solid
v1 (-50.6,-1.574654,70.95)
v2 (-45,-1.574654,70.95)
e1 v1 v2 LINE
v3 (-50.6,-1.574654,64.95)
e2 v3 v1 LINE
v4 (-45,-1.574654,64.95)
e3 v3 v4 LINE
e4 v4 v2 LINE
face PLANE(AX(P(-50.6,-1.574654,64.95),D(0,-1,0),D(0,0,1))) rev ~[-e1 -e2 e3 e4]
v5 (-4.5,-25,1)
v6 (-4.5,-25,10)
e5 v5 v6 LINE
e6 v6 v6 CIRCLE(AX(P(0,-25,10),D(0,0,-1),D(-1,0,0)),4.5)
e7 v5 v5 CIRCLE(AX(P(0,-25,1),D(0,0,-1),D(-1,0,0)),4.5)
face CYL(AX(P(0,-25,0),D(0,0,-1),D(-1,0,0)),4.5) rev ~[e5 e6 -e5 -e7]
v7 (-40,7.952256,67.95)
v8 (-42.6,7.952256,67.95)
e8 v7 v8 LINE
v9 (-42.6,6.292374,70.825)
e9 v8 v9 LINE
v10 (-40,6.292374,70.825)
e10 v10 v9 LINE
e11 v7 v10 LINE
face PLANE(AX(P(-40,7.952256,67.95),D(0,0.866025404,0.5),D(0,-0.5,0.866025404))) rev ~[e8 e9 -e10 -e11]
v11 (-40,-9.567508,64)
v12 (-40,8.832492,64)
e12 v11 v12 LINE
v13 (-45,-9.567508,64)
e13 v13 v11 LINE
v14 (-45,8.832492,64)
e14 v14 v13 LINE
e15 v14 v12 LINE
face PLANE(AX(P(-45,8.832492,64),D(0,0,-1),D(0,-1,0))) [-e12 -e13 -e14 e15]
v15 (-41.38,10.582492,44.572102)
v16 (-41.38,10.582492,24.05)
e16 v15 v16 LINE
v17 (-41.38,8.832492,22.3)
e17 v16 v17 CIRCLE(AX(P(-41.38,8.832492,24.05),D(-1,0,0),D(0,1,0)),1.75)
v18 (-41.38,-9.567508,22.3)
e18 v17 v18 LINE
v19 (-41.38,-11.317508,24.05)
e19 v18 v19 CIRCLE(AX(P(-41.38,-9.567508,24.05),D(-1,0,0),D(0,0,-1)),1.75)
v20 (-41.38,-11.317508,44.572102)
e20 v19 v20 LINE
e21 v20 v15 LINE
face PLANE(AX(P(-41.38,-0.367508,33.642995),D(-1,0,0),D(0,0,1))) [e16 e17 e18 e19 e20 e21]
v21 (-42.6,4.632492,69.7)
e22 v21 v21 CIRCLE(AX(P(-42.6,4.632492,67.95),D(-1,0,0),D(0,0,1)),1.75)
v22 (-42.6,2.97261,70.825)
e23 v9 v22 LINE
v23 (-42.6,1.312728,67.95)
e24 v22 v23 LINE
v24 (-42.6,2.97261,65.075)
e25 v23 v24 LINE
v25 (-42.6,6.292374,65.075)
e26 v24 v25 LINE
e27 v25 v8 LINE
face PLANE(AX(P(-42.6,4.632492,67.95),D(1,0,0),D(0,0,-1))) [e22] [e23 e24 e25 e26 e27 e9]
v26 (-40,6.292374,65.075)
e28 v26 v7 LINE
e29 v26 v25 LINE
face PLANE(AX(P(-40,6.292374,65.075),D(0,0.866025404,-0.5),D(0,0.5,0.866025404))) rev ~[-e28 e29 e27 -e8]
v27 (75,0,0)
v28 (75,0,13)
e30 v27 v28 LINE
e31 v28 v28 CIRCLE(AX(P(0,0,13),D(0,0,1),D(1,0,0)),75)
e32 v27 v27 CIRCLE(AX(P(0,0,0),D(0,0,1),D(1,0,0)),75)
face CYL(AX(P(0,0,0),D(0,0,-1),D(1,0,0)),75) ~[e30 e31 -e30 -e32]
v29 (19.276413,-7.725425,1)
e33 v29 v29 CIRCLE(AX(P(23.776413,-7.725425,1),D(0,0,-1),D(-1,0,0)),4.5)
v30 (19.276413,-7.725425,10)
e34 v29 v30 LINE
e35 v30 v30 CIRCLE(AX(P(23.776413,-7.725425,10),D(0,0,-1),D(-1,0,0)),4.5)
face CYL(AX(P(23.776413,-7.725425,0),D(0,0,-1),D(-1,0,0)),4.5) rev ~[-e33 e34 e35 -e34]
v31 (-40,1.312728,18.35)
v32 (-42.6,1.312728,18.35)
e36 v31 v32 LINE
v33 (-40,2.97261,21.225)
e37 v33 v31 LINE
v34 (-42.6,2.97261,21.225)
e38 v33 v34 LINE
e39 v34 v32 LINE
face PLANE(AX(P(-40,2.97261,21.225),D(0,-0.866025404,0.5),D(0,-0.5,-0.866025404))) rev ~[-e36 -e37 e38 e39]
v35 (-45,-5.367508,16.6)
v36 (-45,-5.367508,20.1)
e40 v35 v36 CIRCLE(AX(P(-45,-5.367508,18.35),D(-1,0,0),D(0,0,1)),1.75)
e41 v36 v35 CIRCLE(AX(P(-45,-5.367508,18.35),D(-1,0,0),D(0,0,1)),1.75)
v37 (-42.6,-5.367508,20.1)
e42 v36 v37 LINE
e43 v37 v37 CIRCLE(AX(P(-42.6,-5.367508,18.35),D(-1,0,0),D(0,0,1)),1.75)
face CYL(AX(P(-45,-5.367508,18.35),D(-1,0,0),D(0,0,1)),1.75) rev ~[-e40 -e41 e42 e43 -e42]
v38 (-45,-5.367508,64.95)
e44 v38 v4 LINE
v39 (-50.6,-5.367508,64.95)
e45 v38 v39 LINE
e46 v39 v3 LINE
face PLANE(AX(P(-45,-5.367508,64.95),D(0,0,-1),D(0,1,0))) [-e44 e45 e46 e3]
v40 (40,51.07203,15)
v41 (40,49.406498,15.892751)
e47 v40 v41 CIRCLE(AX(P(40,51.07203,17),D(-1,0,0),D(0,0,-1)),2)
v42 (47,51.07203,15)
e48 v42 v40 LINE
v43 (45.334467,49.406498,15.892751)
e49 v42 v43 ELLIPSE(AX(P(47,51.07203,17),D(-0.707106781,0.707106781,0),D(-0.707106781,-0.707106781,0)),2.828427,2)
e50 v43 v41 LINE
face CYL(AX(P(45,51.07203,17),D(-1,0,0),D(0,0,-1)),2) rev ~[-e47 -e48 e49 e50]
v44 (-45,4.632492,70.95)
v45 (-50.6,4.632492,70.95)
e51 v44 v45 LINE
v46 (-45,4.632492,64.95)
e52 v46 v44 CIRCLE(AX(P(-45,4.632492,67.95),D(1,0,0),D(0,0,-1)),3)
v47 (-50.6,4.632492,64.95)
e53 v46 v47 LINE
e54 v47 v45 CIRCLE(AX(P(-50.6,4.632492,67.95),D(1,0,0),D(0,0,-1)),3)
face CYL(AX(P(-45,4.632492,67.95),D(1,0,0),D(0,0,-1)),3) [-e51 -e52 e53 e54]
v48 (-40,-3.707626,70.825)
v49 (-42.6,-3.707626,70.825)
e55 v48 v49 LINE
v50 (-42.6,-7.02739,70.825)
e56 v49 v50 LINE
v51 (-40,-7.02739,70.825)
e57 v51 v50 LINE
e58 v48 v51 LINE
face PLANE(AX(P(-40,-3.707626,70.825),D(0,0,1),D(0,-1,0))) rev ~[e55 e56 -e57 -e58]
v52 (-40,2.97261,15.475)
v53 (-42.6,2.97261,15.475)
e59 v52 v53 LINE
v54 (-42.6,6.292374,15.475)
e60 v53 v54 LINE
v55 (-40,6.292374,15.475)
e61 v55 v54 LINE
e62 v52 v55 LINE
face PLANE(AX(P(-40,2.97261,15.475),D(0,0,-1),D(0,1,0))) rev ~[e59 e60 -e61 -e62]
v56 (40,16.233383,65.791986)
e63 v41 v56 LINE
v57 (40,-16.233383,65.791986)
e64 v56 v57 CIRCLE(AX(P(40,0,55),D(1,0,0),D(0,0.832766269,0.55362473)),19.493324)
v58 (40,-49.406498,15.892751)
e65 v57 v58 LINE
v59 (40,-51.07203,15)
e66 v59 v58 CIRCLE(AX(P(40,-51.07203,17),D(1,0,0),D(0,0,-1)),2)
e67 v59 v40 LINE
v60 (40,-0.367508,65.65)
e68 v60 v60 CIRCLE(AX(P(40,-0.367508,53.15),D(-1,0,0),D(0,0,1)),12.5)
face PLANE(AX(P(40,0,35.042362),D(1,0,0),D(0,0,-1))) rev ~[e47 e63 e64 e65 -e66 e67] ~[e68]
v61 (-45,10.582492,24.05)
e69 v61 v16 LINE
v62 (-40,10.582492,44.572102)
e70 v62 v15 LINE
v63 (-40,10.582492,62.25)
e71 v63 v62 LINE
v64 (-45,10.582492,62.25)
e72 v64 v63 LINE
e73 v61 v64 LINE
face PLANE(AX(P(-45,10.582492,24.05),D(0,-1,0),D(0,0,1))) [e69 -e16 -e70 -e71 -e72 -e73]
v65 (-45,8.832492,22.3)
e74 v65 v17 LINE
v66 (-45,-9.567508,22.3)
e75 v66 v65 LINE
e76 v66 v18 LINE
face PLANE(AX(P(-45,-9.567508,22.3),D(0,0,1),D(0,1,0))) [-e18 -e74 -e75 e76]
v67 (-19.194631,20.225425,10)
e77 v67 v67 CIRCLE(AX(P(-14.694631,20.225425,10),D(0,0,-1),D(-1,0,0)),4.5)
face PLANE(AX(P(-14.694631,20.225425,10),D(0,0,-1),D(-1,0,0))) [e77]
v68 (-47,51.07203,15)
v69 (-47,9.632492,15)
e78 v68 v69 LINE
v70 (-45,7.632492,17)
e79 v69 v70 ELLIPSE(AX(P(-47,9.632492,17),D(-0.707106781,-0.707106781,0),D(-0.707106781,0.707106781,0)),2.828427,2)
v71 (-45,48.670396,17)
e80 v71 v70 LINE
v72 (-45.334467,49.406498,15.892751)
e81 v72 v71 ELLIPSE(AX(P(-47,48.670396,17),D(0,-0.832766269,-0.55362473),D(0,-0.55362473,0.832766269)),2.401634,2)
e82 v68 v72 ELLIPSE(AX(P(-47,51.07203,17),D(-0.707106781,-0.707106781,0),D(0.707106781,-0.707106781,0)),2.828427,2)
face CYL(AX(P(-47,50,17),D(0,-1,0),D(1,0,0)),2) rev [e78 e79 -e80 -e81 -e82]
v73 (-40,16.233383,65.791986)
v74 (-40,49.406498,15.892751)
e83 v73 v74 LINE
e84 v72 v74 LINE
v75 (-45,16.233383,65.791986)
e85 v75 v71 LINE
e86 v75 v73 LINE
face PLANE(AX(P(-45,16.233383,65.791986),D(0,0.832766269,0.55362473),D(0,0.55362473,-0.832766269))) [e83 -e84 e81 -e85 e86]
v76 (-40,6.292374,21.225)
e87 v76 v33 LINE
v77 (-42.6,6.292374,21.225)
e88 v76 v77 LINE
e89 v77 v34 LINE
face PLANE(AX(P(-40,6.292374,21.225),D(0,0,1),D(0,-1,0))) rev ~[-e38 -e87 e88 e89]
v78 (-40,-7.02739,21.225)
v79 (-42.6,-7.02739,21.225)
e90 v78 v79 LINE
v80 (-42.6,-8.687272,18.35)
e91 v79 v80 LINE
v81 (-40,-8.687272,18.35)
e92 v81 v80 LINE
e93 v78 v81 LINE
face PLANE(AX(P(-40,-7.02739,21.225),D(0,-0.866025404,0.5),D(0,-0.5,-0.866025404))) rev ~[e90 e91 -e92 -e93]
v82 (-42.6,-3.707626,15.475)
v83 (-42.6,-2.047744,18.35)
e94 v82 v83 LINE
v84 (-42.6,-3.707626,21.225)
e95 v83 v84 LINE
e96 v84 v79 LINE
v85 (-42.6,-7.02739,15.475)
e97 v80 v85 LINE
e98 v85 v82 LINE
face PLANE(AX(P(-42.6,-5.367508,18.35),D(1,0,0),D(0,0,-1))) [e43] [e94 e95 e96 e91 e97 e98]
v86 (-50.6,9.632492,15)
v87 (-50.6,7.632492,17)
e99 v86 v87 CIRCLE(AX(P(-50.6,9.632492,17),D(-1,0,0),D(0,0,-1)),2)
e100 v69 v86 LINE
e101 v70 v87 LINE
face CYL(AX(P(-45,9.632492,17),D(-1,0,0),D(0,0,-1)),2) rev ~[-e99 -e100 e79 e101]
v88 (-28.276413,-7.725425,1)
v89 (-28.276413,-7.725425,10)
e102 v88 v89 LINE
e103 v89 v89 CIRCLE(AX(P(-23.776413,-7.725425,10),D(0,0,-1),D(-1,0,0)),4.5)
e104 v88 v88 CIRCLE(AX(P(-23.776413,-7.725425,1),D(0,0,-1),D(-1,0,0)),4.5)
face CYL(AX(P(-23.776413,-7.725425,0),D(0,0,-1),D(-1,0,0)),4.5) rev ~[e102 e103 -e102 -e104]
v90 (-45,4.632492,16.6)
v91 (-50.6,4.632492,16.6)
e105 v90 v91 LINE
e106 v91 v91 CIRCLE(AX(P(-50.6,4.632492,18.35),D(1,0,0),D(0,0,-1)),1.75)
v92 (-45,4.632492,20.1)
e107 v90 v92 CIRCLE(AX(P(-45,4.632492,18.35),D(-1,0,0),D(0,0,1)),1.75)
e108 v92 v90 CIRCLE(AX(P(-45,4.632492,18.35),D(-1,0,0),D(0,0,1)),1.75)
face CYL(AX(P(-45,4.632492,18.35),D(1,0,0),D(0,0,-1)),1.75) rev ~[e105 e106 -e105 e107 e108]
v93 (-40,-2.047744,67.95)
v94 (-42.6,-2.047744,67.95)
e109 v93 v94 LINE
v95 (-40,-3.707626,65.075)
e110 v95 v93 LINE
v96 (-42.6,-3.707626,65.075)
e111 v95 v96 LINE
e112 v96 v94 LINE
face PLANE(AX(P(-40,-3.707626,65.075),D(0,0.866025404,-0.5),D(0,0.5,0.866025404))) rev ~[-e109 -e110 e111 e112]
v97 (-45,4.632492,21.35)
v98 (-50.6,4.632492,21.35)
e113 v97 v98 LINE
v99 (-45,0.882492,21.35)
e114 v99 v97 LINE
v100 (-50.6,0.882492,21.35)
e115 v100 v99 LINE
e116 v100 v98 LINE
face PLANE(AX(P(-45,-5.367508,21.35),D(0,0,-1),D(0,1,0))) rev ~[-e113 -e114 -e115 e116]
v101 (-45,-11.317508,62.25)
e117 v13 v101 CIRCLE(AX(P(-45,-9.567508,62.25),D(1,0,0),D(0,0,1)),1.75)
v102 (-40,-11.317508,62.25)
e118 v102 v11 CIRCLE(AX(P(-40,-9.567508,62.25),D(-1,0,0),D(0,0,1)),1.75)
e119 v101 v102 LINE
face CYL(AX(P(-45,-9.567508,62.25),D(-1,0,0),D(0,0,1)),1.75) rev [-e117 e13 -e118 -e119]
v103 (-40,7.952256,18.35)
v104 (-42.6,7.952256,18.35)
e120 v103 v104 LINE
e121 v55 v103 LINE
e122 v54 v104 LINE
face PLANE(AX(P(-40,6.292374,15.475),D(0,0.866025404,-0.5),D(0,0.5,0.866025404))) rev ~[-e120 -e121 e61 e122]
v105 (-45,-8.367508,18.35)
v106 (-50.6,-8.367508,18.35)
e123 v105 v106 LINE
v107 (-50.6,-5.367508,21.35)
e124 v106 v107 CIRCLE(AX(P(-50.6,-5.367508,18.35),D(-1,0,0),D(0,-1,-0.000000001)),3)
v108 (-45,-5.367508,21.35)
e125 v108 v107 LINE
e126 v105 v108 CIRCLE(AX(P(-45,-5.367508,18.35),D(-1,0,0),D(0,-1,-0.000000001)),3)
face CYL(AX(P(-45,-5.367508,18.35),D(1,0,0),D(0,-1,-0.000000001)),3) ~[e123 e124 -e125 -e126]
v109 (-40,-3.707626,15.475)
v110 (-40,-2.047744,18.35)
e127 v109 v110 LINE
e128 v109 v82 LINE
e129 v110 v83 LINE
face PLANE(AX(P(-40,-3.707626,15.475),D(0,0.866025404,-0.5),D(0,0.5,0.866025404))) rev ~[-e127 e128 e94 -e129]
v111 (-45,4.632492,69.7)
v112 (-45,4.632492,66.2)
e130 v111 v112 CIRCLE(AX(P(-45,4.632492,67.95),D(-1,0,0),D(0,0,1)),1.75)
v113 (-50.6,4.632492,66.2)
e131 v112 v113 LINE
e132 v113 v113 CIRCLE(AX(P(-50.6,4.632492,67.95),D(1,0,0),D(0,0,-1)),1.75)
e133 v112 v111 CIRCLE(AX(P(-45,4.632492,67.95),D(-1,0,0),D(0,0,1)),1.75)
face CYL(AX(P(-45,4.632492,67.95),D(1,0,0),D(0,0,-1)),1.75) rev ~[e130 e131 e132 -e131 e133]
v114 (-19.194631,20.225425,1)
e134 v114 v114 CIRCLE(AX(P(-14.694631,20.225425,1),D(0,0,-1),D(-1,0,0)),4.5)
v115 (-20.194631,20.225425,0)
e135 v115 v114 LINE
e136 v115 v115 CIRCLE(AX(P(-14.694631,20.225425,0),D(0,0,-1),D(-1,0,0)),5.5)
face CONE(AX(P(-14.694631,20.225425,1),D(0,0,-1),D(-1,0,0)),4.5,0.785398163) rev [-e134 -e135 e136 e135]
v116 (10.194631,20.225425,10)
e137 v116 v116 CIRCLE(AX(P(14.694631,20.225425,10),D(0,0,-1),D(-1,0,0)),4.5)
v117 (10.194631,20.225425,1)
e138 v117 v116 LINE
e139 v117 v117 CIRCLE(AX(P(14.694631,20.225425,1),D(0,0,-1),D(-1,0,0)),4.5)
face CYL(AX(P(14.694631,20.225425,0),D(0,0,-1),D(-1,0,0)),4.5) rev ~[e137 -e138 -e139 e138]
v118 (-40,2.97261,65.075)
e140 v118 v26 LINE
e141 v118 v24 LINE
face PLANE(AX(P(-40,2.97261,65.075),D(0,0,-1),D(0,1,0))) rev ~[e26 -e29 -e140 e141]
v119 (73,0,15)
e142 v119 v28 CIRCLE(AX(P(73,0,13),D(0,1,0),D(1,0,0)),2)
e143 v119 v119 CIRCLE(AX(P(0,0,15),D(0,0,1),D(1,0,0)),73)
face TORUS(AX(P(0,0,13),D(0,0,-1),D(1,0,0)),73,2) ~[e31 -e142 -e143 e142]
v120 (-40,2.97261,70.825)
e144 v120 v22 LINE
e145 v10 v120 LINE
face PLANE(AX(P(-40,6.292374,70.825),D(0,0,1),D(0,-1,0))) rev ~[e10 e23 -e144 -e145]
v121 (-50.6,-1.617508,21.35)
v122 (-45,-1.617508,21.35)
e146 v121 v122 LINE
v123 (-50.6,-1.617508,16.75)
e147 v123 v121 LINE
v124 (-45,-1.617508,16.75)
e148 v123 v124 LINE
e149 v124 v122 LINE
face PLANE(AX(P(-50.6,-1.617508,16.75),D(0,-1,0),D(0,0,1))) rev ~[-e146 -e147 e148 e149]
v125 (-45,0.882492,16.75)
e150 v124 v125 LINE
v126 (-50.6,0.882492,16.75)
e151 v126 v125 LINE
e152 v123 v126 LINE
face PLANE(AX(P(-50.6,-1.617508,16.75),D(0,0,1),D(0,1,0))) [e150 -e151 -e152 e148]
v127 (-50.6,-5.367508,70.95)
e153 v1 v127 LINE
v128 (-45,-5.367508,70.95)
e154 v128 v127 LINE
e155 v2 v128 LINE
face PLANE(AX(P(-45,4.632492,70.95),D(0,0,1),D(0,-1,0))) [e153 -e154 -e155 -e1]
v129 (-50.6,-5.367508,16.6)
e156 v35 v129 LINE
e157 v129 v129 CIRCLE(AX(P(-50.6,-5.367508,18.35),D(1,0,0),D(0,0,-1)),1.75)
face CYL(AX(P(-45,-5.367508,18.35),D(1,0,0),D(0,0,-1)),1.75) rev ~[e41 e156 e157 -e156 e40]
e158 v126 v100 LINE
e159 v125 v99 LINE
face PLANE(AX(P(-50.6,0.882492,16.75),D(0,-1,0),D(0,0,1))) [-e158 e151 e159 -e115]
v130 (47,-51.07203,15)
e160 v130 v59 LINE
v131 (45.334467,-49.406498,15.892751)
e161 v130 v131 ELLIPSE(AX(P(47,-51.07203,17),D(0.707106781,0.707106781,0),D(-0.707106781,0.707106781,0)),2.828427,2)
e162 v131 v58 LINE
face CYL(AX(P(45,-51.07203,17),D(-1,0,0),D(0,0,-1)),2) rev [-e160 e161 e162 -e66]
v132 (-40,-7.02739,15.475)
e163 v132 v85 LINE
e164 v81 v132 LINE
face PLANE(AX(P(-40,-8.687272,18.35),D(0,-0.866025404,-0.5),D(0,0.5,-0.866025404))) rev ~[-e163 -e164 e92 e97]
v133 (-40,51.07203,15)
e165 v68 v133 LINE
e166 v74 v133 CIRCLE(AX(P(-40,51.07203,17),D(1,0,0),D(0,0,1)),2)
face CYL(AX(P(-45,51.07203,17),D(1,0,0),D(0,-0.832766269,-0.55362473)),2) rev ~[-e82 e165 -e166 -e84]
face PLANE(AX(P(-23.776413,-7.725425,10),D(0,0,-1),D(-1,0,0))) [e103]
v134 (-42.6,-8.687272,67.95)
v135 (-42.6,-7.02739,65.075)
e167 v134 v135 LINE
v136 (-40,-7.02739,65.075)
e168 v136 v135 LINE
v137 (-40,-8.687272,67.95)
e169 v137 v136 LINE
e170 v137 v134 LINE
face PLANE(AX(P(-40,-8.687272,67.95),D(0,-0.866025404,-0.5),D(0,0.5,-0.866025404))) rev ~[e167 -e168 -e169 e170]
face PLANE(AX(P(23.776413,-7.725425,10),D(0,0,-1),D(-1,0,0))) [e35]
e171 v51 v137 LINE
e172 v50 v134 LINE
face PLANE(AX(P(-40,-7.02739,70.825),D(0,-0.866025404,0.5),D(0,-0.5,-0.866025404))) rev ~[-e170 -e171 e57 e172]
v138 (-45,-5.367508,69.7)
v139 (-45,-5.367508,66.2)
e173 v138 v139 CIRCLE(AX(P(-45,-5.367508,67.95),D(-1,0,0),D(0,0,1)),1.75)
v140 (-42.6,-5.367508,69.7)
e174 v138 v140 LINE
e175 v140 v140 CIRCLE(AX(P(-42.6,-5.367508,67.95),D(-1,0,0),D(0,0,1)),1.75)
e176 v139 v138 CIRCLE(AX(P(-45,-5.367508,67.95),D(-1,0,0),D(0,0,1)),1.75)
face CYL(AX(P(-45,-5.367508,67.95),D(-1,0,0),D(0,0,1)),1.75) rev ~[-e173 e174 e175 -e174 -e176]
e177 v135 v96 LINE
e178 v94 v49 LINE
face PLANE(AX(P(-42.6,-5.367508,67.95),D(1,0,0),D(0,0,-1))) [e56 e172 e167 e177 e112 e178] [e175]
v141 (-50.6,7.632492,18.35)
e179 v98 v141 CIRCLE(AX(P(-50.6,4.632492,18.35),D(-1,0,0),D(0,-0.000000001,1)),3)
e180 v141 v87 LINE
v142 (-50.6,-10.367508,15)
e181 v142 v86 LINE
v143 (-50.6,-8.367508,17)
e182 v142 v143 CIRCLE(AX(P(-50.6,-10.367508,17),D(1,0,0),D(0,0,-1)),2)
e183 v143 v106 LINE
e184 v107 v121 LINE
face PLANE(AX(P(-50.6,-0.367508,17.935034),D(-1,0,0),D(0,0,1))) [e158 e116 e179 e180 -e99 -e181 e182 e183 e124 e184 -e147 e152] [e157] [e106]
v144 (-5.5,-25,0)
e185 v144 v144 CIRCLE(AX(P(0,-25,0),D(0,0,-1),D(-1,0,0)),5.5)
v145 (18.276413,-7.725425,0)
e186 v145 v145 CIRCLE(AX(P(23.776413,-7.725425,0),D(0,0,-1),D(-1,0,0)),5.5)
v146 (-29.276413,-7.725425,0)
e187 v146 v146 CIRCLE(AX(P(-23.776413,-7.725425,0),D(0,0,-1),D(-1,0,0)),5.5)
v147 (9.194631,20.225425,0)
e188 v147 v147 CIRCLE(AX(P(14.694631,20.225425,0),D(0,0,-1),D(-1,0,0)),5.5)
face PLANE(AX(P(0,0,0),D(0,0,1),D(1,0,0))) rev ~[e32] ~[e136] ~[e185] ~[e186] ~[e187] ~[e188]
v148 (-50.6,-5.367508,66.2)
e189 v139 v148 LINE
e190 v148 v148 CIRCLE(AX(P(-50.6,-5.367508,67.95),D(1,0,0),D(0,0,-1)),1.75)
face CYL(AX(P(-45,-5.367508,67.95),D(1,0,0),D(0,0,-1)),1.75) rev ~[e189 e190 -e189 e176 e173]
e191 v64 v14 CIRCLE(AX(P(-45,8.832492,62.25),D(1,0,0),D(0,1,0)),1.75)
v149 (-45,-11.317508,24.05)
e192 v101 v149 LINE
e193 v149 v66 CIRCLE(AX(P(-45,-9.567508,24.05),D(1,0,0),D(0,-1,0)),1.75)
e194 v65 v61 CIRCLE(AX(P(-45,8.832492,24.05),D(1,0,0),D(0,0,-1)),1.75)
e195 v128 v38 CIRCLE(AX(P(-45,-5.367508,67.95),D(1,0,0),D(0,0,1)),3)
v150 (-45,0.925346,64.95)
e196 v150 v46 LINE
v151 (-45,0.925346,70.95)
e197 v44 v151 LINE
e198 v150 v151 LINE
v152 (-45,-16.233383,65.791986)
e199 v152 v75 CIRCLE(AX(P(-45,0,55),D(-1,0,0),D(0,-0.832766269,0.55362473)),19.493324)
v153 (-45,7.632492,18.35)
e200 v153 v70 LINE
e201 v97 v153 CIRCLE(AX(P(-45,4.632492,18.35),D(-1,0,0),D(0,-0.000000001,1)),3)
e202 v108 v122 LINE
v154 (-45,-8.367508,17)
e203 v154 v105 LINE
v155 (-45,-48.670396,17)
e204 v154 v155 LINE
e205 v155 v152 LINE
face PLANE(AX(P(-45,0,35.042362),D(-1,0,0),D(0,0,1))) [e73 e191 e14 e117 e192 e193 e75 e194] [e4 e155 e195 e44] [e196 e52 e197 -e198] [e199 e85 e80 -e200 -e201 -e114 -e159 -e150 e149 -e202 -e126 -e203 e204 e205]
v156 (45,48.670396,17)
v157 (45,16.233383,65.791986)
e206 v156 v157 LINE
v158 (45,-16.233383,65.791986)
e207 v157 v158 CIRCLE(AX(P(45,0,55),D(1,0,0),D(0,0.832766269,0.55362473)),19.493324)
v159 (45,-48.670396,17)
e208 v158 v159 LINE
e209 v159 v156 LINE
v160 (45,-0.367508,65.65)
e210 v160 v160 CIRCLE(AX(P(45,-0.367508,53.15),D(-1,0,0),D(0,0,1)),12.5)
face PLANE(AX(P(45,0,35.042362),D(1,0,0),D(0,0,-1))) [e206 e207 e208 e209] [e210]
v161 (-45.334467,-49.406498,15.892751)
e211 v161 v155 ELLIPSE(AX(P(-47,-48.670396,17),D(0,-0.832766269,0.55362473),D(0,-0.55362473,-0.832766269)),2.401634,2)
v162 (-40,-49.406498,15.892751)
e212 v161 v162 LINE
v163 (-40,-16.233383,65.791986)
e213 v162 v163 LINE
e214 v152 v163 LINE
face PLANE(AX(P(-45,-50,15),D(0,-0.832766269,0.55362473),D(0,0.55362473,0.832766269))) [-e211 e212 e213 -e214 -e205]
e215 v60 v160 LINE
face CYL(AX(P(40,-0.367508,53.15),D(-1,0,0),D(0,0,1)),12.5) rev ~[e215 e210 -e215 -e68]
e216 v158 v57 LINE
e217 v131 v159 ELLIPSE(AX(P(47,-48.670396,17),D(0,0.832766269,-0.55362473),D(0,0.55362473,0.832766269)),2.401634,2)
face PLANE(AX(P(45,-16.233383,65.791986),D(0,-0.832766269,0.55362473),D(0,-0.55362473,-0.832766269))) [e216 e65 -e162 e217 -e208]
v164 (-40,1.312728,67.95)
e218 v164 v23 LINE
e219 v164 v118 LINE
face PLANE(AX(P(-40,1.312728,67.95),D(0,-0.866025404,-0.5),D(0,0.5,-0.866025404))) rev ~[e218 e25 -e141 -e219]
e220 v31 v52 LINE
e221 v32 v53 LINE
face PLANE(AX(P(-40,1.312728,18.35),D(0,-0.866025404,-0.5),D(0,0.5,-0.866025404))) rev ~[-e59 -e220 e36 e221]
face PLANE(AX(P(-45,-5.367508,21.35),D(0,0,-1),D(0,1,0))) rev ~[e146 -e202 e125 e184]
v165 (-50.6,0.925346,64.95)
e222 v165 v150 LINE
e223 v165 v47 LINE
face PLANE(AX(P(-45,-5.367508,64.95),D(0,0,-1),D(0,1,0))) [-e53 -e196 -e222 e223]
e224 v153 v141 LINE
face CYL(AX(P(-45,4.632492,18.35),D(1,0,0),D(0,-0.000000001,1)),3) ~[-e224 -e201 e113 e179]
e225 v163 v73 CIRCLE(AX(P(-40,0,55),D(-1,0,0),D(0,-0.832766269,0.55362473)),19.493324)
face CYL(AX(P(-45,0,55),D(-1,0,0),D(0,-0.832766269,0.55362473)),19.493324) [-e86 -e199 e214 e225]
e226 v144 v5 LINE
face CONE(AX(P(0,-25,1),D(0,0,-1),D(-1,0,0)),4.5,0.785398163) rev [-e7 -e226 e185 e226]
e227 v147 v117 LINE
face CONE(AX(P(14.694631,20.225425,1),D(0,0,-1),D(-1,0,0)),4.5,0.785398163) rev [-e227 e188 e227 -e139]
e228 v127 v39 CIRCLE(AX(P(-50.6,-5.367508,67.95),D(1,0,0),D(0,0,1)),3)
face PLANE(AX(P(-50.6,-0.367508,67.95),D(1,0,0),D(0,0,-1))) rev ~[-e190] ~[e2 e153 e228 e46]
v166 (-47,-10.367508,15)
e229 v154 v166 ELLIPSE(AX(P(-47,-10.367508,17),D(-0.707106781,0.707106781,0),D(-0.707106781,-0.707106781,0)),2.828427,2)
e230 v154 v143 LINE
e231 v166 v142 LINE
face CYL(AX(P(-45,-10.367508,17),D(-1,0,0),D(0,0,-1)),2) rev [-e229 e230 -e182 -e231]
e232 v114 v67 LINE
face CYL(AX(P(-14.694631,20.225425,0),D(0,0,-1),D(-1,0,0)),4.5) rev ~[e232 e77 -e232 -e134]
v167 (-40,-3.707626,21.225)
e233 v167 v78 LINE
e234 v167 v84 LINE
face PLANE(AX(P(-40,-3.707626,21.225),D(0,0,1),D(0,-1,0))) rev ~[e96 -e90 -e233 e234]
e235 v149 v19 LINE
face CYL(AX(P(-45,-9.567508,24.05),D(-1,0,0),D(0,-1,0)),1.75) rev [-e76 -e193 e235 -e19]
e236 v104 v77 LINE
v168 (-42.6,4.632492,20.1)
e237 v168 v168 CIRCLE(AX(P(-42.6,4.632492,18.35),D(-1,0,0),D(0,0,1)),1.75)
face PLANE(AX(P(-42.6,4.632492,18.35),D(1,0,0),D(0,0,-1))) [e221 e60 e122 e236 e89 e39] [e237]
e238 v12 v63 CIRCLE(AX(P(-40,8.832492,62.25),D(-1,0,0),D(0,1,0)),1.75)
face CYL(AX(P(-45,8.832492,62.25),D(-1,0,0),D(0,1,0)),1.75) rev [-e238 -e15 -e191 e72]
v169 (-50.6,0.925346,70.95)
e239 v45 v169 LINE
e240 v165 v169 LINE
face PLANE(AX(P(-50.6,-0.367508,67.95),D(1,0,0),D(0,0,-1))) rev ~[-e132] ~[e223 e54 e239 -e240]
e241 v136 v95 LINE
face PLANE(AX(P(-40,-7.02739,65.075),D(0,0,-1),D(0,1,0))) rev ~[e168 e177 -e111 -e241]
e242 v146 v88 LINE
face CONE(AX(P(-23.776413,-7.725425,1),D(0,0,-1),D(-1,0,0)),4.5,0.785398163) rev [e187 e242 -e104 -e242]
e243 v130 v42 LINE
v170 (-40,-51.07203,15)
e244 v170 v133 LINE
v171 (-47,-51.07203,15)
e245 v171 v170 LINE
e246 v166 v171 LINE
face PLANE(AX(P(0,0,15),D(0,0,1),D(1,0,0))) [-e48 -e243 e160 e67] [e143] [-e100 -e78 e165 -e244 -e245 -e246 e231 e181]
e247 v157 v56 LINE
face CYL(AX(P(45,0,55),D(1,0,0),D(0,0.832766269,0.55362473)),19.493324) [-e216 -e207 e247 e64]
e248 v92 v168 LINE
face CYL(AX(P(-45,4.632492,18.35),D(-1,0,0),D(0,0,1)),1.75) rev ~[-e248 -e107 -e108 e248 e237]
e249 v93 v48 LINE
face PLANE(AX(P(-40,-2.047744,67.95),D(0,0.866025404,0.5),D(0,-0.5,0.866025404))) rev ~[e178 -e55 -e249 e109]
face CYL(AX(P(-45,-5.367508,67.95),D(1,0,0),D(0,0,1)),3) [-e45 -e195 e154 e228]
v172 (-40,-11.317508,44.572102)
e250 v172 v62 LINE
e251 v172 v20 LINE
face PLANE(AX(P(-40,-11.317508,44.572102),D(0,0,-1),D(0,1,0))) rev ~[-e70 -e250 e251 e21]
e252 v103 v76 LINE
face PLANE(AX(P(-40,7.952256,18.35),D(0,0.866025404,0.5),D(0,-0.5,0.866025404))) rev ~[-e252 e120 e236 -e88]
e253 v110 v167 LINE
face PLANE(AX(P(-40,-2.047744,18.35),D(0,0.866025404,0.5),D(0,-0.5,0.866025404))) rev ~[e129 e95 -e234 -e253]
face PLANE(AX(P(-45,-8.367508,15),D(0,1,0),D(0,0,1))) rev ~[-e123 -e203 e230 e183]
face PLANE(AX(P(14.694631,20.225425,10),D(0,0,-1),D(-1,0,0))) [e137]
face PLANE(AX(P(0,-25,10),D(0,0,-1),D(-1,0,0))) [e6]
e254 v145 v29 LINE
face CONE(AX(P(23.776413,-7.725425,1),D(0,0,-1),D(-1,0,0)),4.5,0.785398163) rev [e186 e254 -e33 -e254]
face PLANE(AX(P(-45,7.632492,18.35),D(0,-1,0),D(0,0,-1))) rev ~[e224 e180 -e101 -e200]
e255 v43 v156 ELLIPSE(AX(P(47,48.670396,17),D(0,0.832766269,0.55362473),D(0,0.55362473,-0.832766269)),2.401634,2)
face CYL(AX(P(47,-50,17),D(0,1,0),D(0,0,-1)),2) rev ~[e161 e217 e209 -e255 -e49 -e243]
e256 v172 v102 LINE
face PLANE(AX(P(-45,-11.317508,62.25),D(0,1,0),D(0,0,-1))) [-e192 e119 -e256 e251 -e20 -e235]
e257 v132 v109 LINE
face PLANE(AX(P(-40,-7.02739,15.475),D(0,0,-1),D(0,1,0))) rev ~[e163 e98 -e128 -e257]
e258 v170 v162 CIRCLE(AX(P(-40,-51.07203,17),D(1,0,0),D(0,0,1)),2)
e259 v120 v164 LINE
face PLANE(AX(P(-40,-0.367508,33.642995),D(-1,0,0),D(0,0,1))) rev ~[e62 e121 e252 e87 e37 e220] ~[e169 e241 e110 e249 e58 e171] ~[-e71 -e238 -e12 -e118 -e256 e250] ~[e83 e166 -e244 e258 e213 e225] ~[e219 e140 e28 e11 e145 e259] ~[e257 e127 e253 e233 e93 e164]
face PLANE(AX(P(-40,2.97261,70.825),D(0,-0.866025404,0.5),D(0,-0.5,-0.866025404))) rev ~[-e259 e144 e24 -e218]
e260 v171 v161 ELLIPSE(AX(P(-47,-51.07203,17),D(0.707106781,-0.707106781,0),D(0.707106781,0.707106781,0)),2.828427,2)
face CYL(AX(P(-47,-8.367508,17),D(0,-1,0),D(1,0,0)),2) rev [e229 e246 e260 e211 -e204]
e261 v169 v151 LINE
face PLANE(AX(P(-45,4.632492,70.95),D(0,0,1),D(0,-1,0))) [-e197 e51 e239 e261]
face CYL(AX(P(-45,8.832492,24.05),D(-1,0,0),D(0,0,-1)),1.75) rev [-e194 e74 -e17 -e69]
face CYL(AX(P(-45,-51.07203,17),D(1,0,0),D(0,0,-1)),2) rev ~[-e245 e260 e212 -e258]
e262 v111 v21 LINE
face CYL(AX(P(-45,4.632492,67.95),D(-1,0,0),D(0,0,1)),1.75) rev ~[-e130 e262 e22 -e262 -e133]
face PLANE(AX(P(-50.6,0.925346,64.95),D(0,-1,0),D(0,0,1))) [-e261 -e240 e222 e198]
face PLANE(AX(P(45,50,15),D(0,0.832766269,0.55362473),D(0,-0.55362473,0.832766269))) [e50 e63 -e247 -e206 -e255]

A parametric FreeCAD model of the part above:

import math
import FreeCAD as App
import Part
import Sketcher

V = App.Vector
Q = App.Units.Quantity


def edges_at(feature, points):
    """Names of the edges that pass closest to the given points."""
    edges = feature.Shape.Edges
    near = lambda p: min(range(len(edges)), key=lambda i: edges[i].distToShape(Part.Vertex(*p))[0])
    return sorted({f"Edge{near(p) + 1}" for p in points})


def add_polygon(sketch, points):
    """Adds a closed chain of lines whose ends are joined by coincident constraints."""
    first, n = sketch.GeometryCount, len(points)
    for a, b in zip(points, points[1:] + points[:1]):
        sketch.addGeometry(Part.LineSegment(App.Vector(*a, 0), App.Vector(*b, 0)), False)
    for i in range(n):
        sketch.addConstraint(Sketcher.Constraint("Coincident", first + i, 2, first + (i + 1) % n, 1))

doc = App.newDocument("Part")
body = doc.addObject("PartDesign::Body", "Body")

# Sketch on XY plane
sketch1 = body.newObject("Sketcher::SketchObject", "Sketch")
sketch1.AttachmentSupport = (doc.getObject("XY_Plane"), [""])
sketch1.MapMode = "FlatFace"
sketch1.addGeometry(Part.Circle(V(0, 0, 0), V(0, 0, 1), 75), False)
sketch1.addConstraint([
    Sketcher.Constraint("Coincident", 0, 3, -1, 1),
    Sketcher.Constraint("Diameter", 0, Q("150 mm")),
])
pad1 = body.newObject("PartDesign::Pad", "Pad")
pad1.Profile = sketch1
pad1.Length = 15

# Sketch on XY plane
sketch2 = body.newObject("Sketcher::SketchObject", "Sketch001")
sketch2.AttachmentSupport = (doc.getObject("XY_Plane"), [""])
sketch2.MapMode = "FlatFace"
sketch2.addGeometry([
    Part.Circle(V(0, -25, 0), V(0, 0, 1), 4.5),  # 0
    Part.Circle(V(23.776413, -7.725425, 0), V(0, 0, 1), 4.5),  # 1
    Part.Circle(V(14.694631, 20.225425, 0), V(0, 0, 1), 4.5),  # 2
    Part.Circle(V(-14.694631, 20.225425, 0), V(0, 0, 1), 4.5),  # 3
    Part.Circle(V(-23.776413, -7.725425, 0), V(0, 0, 1), 4.5),  # 4
], False)
sketch2.addConstraint([
    Sketcher.Constraint("Equal", 0, 1),
    Sketcher.Constraint("Equal", 1, 2),
    Sketcher.Constraint("Equal", 2, 3),
    Sketcher.Constraint("Equal", 3, 4),
    Sketcher.Constraint("Symmetric", 2, 3, 3, 3, -2),
    Sketcher.Constraint("Symmetric", 1, 3, 4, 3, -2),
    Sketcher.Constraint("PointOnObject", 0, 3, -2),
    Sketcher.Constraint("Diameter", 0, Q("9 mm")),
    Sketcher.Constraint("DistanceY", 0, 3, -1, 1, Q("25 mm")),
    Sketcher.Constraint("DistanceX", -1, 1, 2, 3, Q("14.694631 mm")),
    Sketcher.Constraint("DistanceX", 2, 3, 1, 3, Q("9.081782 mm")),
    Sketcher.Constraint("DistanceY", 1, 3, 2, 3, Q("27.95085 mm")),
    Sketcher.Constraint("DistanceY", 1, 3, -1, 1, Q("7.725425 mm")),
])
pocket1 = body.newObject("PartDesign::Pocket", "Pocket")
pocket1.Profile = sketch2
pocket1.Length = 10
pocket1.Reversed = True
doc.recompute()

chamfer = body.newObject("PartDesign::Chamfer", "Chamfer")
chamfer.Base = (pocket1, edges_at(pocket1, [
    (28.276, -7.725, 0),
    (19.195, 20.225, 0),
    (-10.195, 20.225, 0),
    (-19.276, -7.725, 0),
    (4.5, -25, 0),
]))
chamfer.Size = 1

# Sketch on YZ plane
sketch3 = body.newObject("Sketcher::SketchObject", "Sketch002")
sketch3.AttachmentSupport = (doc.getObject("YZ_Plane"), [""])
sketch3.MapMode = "FlatFace"
sketch3.AttachmentOffset = App.Placement(V(0, 0, 45), App.Rotation())
sketch3.addGeometry([
    Part.LineSegment(V(50, 15, 0), V(16.233383, 65.791986, 0)),
    Part.ArcOfCircle(Part.Circle(V(0, 55, 0), V(0, 0, 1), 19.493324), math.radians(33.616042), math.radians(146.383958)),
    Part.LineSegment(V(-16.233383, 65.791986, 0), V(-50, 15, 0)),
    Part.LineSegment(V(-50, 15, 0), V(50, 15, 0)),
], False)
sketch3.addConstraint([
    Sketcher.Constraint("Tangent", 0, 2, 1, 1),
    Sketcher.Constraint("Tangent", 1, 2, 2, 1),
    Sketcher.Constraint("Coincident", 2, 2, 3, 1),
    Sketcher.Constraint("Coincident", 3, 2, 0, 1),
    Sketcher.Constraint("Horizontal", 3),
    Sketcher.Constraint("Symmetric", 0, 2, 1, 2, -2),
    Sketcher.Constraint("DistanceX", 3, 1, 3, 2, Q("100 mm")),
    Sketcher.Constraint("DistanceY", -1, 1, 1, 3, Q("55 mm")),
    Sketcher.Constraint("DistanceY", -1, 1, 2, 2, Q("15 mm")),
    Sketcher.Constraint("Radius", 1, Q("19.493324 mm")),
])
pad2 = body.newObject("PartDesign::Pad", "Pad001")
pad2.Profile = sketch3
pad2.Length = 5
pad2.Reversed = True

# Sketch on YZ plane
sketch4 = body.newObject("Sketcher::SketchObject", "Sketch003")
sketch4.AttachmentSupport = (doc.getObject("YZ_Plane"), [""])
sketch4.MapMode = "FlatFace"
sketch4.AttachmentOffset = App.Placement(V(0, 0, -45), App.Rotation())
sketch4.addGeometry([
    Part.LineSegment(V(50, 15, 0), V(-50, 15, 0)),
    Part.LineSegment(V(-50, 15, 0), V(-16.233383, 65.791986, 0)),
    Part.ArcOfCircle(Part.Circle(V(0, 55, 0), V(0, 0, 1), 19.493324), math.radians(33.616042), math.radians(146.383958)),
    Part.LineSegment(V(16.233383, 65.791986, 0), V(50, 15, 0)),
], False)
sketch4.addConstraint([
    Sketcher.Constraint("Coincident", 0, 2, 1, 1),
    Sketcher.Constraint("Tangent", 1, 2, 2, 2),
    Sketcher.Constraint("Tangent", 2, 1, 3, 1),
    Sketcher.Constraint("Coincident", 3, 2, 0, 1),
    Sketcher.Constraint("Horizontal", 0),
    Sketcher.Constraint("Symmetric", 1, 2, 2, 1, -2),
    Sketcher.Constraint("DistanceX", 0, 2, 0, 1, Q("100 mm")),
    Sketcher.Constraint("DistanceY", -1, 1, 2, 3, Q("55 mm")),
    Sketcher.Constraint("DistanceY", -1, 1, 0, 2, Q("15 mm")),
    Sketcher.Constraint("Radius", 2, Q("19.493324 mm")),
])
pad3 = body.newObject("PartDesign::Pad", "Pad002")
pad3.Profile = sketch4
pad3.Length = 5

# Sketch on YZ plane
sketch5 = body.newObject("Sketcher::SketchObject", "Sketch004")
sketch5.AttachmentSupport = (doc.getObject("YZ_Plane"), [""])
sketch5.MapMode = "FlatFace"
sketch5.AttachmentOffset = App.Placement(V(0, 0, -45), App.Rotation())
sketch5.addGeometry([
    Part.LineSegment(V(-9.567508, 64, 0), V(8.832492, 64, 0)),  # 0
    Part.ArcOfCircle(Part.Circle(V(8.832492, 62.25, 0), V(0, 0, 1), 1.75), math.radians(0), math.radians(90)),  # 1
    Part.LineSegment(V(10.582492, 62.25, 0), V(10.582492, 24.05, 0)),  # 2
    Part.ArcOfCircle(Part.Circle(V(8.832492, 24.05, 0), V(0, 0, 1), 1.75), math.radians(-90), math.radians(0)),  # 3
    Part.LineSegment(V(8.832492, 22.3, 0), V(-9.567508, 22.3, 0)),  # 4
    Part.ArcOfCircle(Part.Circle(V(-9.567508, 24.05, 0), V(0, 0, 1), 1.75), math.radians(180), math.radians(270)),  # 5
    Part.LineSegment(V(-11.317508, 24.05, 0), V(-11.317508, 62.25, 0)),  # 6
    Part.ArcOfCircle(Part.Circle(V(-9.567508, 62.25, 0), V(0, 0, 1), 1.75), math.radians(90), math.radians(180)),  # 7
], False)
sketch5.addConstraint([
    Sketcher.Constraint("Tangent", 0, 2, 1, 2),
    Sketcher.Constraint("Tangent", 1, 1, 2, 1),
    Sketcher.Constraint("Tangent", 2, 2, 3, 2),
    Sketcher.Constraint("Tangent", 3, 1, 4, 1),
    Sketcher.Constraint("Tangent", 4, 2, 5, 2),
    Sketcher.Constraint("Tangent", 5, 1, 6, 1),
    Sketcher.Constraint("Tangent", 6, 2, 7, 2),
    Sketcher.Constraint("Tangent", 7, 1, 0, 1),
    Sketcher.Constraint("Horizontal", 0),
    Sketcher.Constraint("Vertical", 2),
    Sketcher.Constraint("Horizontal", 4),
    Sketcher.Constraint("Vertical", 6),
    Sketcher.Constraint("Equal", 1, 3),
    Sketcher.Constraint("Equal", 3, 5),
    Sketcher.Constraint("Equal", 5, 7),
    Sketcher.Constraint("Radius", 1, Q("1.75 mm")),
    Sketcher.Constraint("DistanceX", 0, 1, 0, 2, Q("18.4 mm")),
    Sketcher.Constraint("DistanceY", 2, 2, 2, 1, Q("38.2 mm")),
    Sketcher.Constraint("DistanceY", -1, 1, 0, 2, Q("64 mm")),
    Sketcher.Constraint("DistanceX", -1, 1, 1, 3, Q("8.832492 mm")),
])
pocket2 = body.newObject("PartDesign::Pocket", "Pocket001")
pocket2.Profile = sketch5
pocket2.Type = "UpToFirst"
pocket2.Reversed = True

# Sketch on YZ plane
sketch6 = body.newObject("Sketcher::SketchObject", "Sketch005")
sketch6.AttachmentSupport = (doc.getObject("YZ_Plane"), [""])
sketch6.MapMode = "FlatFace"
sketch6.AttachmentOffset = App.Placement(V(0, 0, -45), App.Rotation())
sketch6.addGeometry(Part.Circle(V(4.632492, 18.35, 0), V(0, 0, 1), 1.75), False)
sketch6.addConstraint([
    Sketcher.Constraint("Diameter", 0, Q("3.5 mm")),
    Sketcher.Constraint("DistanceY", -1, 1, 0, 3, Q("18.35 mm")),
    Sketcher.Constraint("DistanceX", -1, 1, 0, 3, Q("4.632492 mm")),
])
pocket3 = body.newObject("PartDesign::Pocket", "Pocket002")
pocket3.Profile = sketch6
pocket3.Type = "UpToFirst"
pocket3.Reversed = True

# Sketch on YZ plane
sketch7 = body.newObject("Sketcher::SketchObject", "Sketch006")
sketch7.AttachmentSupport = (doc.getObject("YZ_Plane"), [""])
sketch7.MapMode = "FlatFace"
sketch7.AttachmentOffset = App.Placement(V(0, 0, -45), App.Rotation())
sketch7.addGeometry(Part.Circle(V(-5.367508, 18.35, 0), V(0, 0, 1), 1.75), False)
sketch7.addConstraint([
    Sketcher.Constraint("Diameter", 0, Q("3.5 mm")),
    Sketcher.Constraint("DistanceY", -1, 1, 0, 3, Q("18.35 mm")),
    Sketcher.Constraint("DistanceX", 0, 3, -1, 1, Q("5.367508 mm")),
])
pocket4 = body.newObject("PartDesign::Pocket", "Pocket003")
pocket4.Profile = sketch7
pocket4.Type = "UpToFirst"
pocket4.Reversed = True

# Sketch on YZ plane
sketch8 = body.newObject("Sketcher::SketchObject", "Sketch007")
sketch8.AttachmentSupport = (doc.getObject("YZ_Plane"), [""])
sketch8.MapMode = "FlatFace"
sketch8.AttachmentOffset = App.Placement(V(0, 0, -45), App.Rotation())
sketch8.addGeometry(Part.Circle(V(-5.367508, 67.95, 0), V(0, 0, 1), 1.75), False)
sketch8.addConstraint([
    Sketcher.Constraint("Diameter", 0, Q("3.5 mm")),
    Sketcher.Constraint("DistanceY", -1, 1, 0, 3, Q("67.95 mm")),
    Sketcher.Constraint("DistanceX", 0, 3, -1, 1, Q("5.367508 mm")),
])
pocket5 = body.newObject("PartDesign::Pocket", "Pocket004")
pocket5.Profile = sketch8
pocket5.Type = "UpToFirst"
pocket5.Reversed = True

# Sketch on YZ plane
sketch9 = body.newObject("Sketcher::SketchObject", "Sketch008")
sketch9.AttachmentSupport = (doc.getObject("YZ_Plane"), [""])
sketch9.MapMode = "FlatFace"
sketch9.AttachmentOffset = App.Placement(V(0, 0, -45), App.Rotation())
sketch9.addGeometry(Part.Circle(V(4.632492, 67.95, 0), V(0, 0, 1), 1.75), False)
sketch9.addConstraint([
    Sketcher.Constraint("Diameter", 0, Q("3.5 mm")),
    Sketcher.Constraint("DistanceY", -1, 1, 0, 3, Q("67.95 mm")),
    Sketcher.Constraint("DistanceX", -1, 1, 0, 3, Q("4.632492 mm")),
])
pocket6 = body.newObject("PartDesign::Pocket", "Pocket005")
pocket6.Profile = sketch9
pocket6.Type = "UpToFirst"
pocket6.Reversed = True

# Sketch on YZ plane
sketch10 = body.newObject("Sketcher::SketchObject", "Sketch009")
sketch10.AttachmentSupport = (doc.getObject("YZ_Plane"), [""])
sketch10.MapMode = "FlatFace"
sketch10.AttachmentOffset = App.Placement(V(0, 0, -45), App.Rotation())
sketch10.addGeometry([
    Part.LineSegment(V(-5.367508, 70.95, 0), V(4.632492, 70.95, 0)),  # 0
    Part.ArcOfCircle(Part.Circle(V(4.632492, 67.95, 0), V(0, 0, 1), 3), math.radians(-90), math.radians(90)),  # 1
    Part.LineSegment(V(4.632492, 64.95, 0), V(-5.367508, 64.95, 0)),  # 2
    Part.ArcOfCircle(Part.Circle(V(-5.367508, 67.95, 0), V(0, 0, 1), 3), math.radians(90), math.radians(270)),  # 3
    Part.LineSegment(V(7.632492, 15, 0), V(-8.367508, 15, 0)),  # 4
    Part.LineSegment(V(-8.367508, 15, 0), V(-8.367508, 18.35, 0)),  # 5
    Part.ArcOfCircle(Part.Circle(V(-5.367508, 18.35, 0), V(0, 0, 1), 3), math.radians(90), math.radians(180)),  # 6
    Part.LineSegment(V(-5.367508, 21.35, 0), V(4.632492, 21.35, 0)),  # 7
    Part.ArcOfCircle(Part.Circle(V(4.632492, 18.35, 0), V(0, 0, 1), 3), math.radians(0), math.radians(90)),  # 8
    Part.LineSegment(V(7.632492, 18.35, 0), V(7.632492, 15, 0)),  # 9
], False)
sketch10.addConstraint([
    Sketcher.Constraint("Tangent", 0, 2, 1, 2),
    Sketcher.Constraint("Tangent", 1, 1, 2, 1),
    Sketcher.Constraint("Tangent", 2, 2, 3, 2),
    Sketcher.Constraint("Tangent", 3, 1, 0, 1),
    Sketcher.Constraint("Coincident", 4, 2, 5, 1),
    Sketcher.Constraint("Tangent", 5, 2, 6, 2),
    Sketcher.Constraint("Tangent", 6, 1, 7, 1),
    Sketcher.Constraint("Tangent", 7, 2, 8, 2),
    Sketcher.Constraint("Tangent", 8, 1, 9, 1),
    Sketcher.Constraint("Coincident", 9, 2, 4, 1),
    Sketcher.Constraint("Horizontal", 0),
    Sketcher.Constraint("Horizontal", 2),
    Sketcher.Constraint("Horizontal", 4),
    Sketcher.Constraint("Vertical", 5),
    Sketcher.Constraint("Horizontal", 7),
    Sketcher.Constraint("Vertical", 9),
    Sketcher.Constraint("Equal", 3, 6),
    Sketcher.Constraint("Equal", 6, 8),
    Sketcher.Constraint("Vertical", 3, 3, 6, 3),
    Sketcher.Constraint("Vertical", 1, 3, 8, 3),
    Sketcher.Constraint("Radius", 1, Q("3 mm")),
    Sketcher.Constraint("DistanceX", 0, 1, 0, 2, Q("10 mm")),
    Sketcher.Constraint("DistanceY", -1, 1, 4, 2, Q("15 mm")),
    Sketcher.Constraint("DistanceY", 5, 1, 5, 2, Q("3.35 mm")),
    Sketcher.Constraint("DistanceY", 6, 3, 3, 3, Q("49.6 mm")),
    Sketcher.Constraint("DistanceX", -1, 1, 1, 3, Q("4.632492 mm")),
])
pad4 = body.newObject("PartDesign::Pad", "Pad003")
pad4.Profile = sketch10
pad4.Length = 5.6
pad4.Reversed = True

# Sketch on YZ plane
sketch11 = body.newObject("Sketcher::SketchObject", "Sketch010")
sketch11.AttachmentSupport = (doc.getObject("YZ_Plane"), [""])
sketch11.MapMode = "FlatFace"
sketch11.AttachmentOffset = App.Placement(V(0, 0, -45), App.Rotation())
sketch11.addGeometry([
    Part.Circle(V(-5.367508, 67.95, 0), V(0, 0, 1), 1.75),
    Part.Circle(V(4.632492, 67.95, 0), V(0, 0, 1), 1.75),
    Part.Circle(V(-5.367508, 18.35, 0), V(0, 0, 1), 1.75),
    Part.Circle(V(4.632492, 18.35, 0), V(0, 0, 1), 1.75),
], False)
sketch11.addConstraint([
    Sketcher.Constraint("Equal", 0, 1),
    Sketcher.Constraint("Equal", 1, 2),
    Sketcher.Constraint("Equal", 2, 3),
    Sketcher.Constraint("Horizontal", 0, 3, 1, 3),
    Sketcher.Constraint("Horizontal", 2, 3, 3, 3),
    Sketcher.Constraint("Vertical", 0, 3, 2, 3),
    Sketcher.Constraint("Vertical", 1, 3, 3, 3),
    Sketcher.Constraint("Diameter", 0, Q("3.5 mm")),
    Sketcher.Constraint("DistanceX", 0, 3, 1, 3, Q("10 mm")),
    Sketcher.Constraint("DistanceY", 2, 3, 0, 3, Q("49.6 mm")),
    Sketcher.Constraint("DistanceY", -1, 1, 0, 3, Q("67.95 mm")),
    Sketcher.Constraint("DistanceX", 0, 3, -1, 1, Q("5.367508 mm")),
])
pocket7 = body.newObject("PartDesign::Pocket", "Pocket006")
pocket7.Profile = sketch11
pocket7.Length = 5.6

# Sketch on YZ plane
sketch12 = body.newObject("Sketcher::SketchObject", "Sketch011")
sketch12.AttachmentSupport = (doc.getObject("YZ_Plane"), [""])
sketch12.MapMode = "FlatFace"
sketch12.AttachmentOffset = App.Placement(V(0, 0, -50.6), App.Rotation())
add_polygon(sketch12, [(0.882492, 16.75), (-1.617508, 16.75), (-1.617508, 21.35), (0.882492, 21.35)])  # lines 0-3
add_polygon(sketch12, [(0.925346, 64.95), (-1.574654, 64.95), (-1.574654, 70.95), (0.925346, 70.95)])  # lines 4-7
sketch12.addConstraint([
    Sketcher.Constraint("Horizontal", 0),
    Sketcher.Constraint("Vertical", 1),
    Sketcher.Constraint("Horizontal", 2),
    Sketcher.Constraint("Vertical", 3),
    Sketcher.Constraint("Horizontal", 4),
    Sketcher.Constraint("Vertical", 5),
    Sketcher.Constraint("Horizontal", 6),
    Sketcher.Constraint("Vertical", 7),
    Sketcher.Constraint("Equal", 2, 4),
    Sketcher.Constraint("DistanceY", 5, 1, 5, 2, Q("6 mm")),
    Sketcher.Constraint("DistanceX", 0, 2, 0, 1, Q("2.5 mm")),
    Sketcher.Constraint("DistanceY", 1, 1, 1, 2, Q("4.6 mm")),
    Sketcher.Constraint("DistanceY", 1, 2, 4, 2, Q("43.6 mm")),
    Sketcher.Constraint("DistanceY", -1, 1, 0, 2, Q("16.75 mm")),
    Sketcher.Constraint("DistanceX", 0, 2, -1, 1, Q("1.617508 mm")),
    Sketcher.Constraint("DistanceX", 4, 2, -1, 1, Q("1.574654 mm")),
])
pocket8 = body.newObject("PartDesign::Pocket", "Pocket007")
pocket8.Profile = sketch12
pocket8.Length = 5.6
pocket8.Reversed = True

# Sketch on YZ plane
sketch13 = body.newObject("Sketcher::SketchObject", "Sketch012")
sketch13.AttachmentSupport = (doc.getObject("YZ_Plane"), [""])
sketch13.MapMode = "FlatFace"
sketch13.AttachmentOffset = App.Placement(V(0, 0, -40), App.Rotation())
add_polygon(sketch13, [(-7.02739, 65.075), (-3.707626, 65.075), (-2.047744, 67.95), (-3.707626, 70.825), (-7.02739, 70.825), (-8.687272, 67.95)])  # lines 0-5
add_polygon(sketch13, [(2.97261, 65.075), (6.292374, 65.075), (7.952256, 67.95), (6.292374, 70.825), (2.97261, 70.825), (1.312728, 67.95)])  # lines 6-11
add_polygon(sketch13, [(-7.02739, 15.475), (-3.707626, 15.475), (-2.047744, 18.35), (-3.707626, 21.225), (-7.02739, 21.225), (-8.687272, 18.35)])  # lines 12-17
add_polygon(sketch13, [(2.97261, 15.475), (6.292374, 15.475), (7.952256, 18.35), (6.292374, 21.225), (2.97261, 21.225), (1.312728, 18.35)])  # lines 18-23
sketch13.addConstraint([
    Sketcher.Constraint("Horizontal", 0),
    Sketcher.Constraint("Horizontal", 3),
    Sketcher.Constraint("Horizontal", 6),
    Sketcher.Constraint("Horizontal", 9),
    Sketcher.Constraint("Horizontal", 12),
    Sketcher.Constraint("Horizontal", 15),
    Sketcher.Constraint("Horizontal", 18),
    Sketcher.Constraint("Horizontal", 21),
    Sketcher.Constraint("Parallel", 1, 4),
    Sketcher.Constraint("Parallel", 2, 5),
    Sketcher.Constraint("Parallel", 4, 7),
    Sketcher.Constraint("Parallel", 5, 8),
    Sketcher.Constraint("Parallel", 7, 10),
    Sketcher.Constraint("Parallel", 8, 11),
    Sketcher.Constraint("Parallel", 10, 13),
    Sketcher.Constraint("Parallel", 11, 14),
    Sketcher.Constraint("Parallel", 13, 16),
    Sketcher.Constraint("Parallel", 14, 17),
    Sketcher.Constraint("Parallel", 16, 19),
    Sketcher.Constraint("Parallel", 17, 20),
    Sketcher.Constraint("Parallel", 19, 22),
    Sketcher.Constraint("Parallel", 20, 23),
    Sketcher.Constraint("Horizontal", 1, 2, 4, 2),
    Sketcher.Constraint("Horizontal", 5, 2, 6, 2),
    Sketcher.Constraint("Horizontal", 4, 2, 7, 2),
    Sketcher.Constraint("Horizontal", 3, 2, 8, 2),
    Sketcher.Constraint("Horizontal", 7, 2, 10, 2),
    Sketcher.Constraint("Horizontal", 13, 2, 16, 2),
    Sketcher.Constraint("Horizontal", 17, 2, 18, 2),
    Sketcher.Constraint("Horizontal", 16, 2, 19, 2),
    Sketcher.Constraint("Horizontal", 15, 2, 20, 2),
    Sketcher.Constraint("Horizontal", 19, 2, 22, 2),
    Sketcher.Constraint("Vertical", 0, 2, 2, 2),
    Sketcher.Constraint("Vertical", 3, 2, 5, 2),
    Sketcher.Constraint("Vertical", 2, 2, 12, 2),
    Sketcher.Constraint("Vertical", 1, 2, 13, 2),
    Sketcher.Constraint("Vertical", 12, 2, 14, 2),
    Sketcher.Constraint("Vertical", 5, 2, 15, 2),
    Sketcher.Constraint("Vertical", 8, 2, 18, 2),
    Sketcher.Constraint("Vertical", 11, 2, 21, 2),
    Sketcher.Constraint("Equal", 3, 6),
    Sketcher.Constraint("Angle", 1, Q("60 deg")),
    Sketcher.Constraint("DistanceX", 0, 2, 6, 2, Q("10 mm")),
    Sketcher.Constraint("DistanceY", 12, 2, 0, 2, Q("49.6 mm")),
    Sketcher.Constraint("DistanceY", -1, 1, 1, 2, Q("67.95 mm")),
    Sketcher.Constraint("DistanceY", 0, 2, 2, 2, Q("5.75 mm")),
    Sketcher.Constraint("DistanceX", 0, 1, 0, 2, Q("3.319764 mm")),
    Sketcher.Constraint("DistanceX", 3, 2, -1, 1, Q("7.02739 mm")),
])
pocket9 = body.newObject("PartDesign::Pocket", "Pocket008")
pocket9.Profile = sketch13
pocket9.Length = 2.6

# Sketch on YZ plane
sketch14 = body.newObject("Sketcher::SketchObject", "Sketch013")
sketch14.AttachmentSupport = (doc.getObject("YZ_Plane"), [""])
sketch14.MapMode = "FlatFace"
sketch14.AttachmentOffset = App.Placement(V(0, 0, -40), App.Rotation())
sketch14.addGeometry([
    Part.LineSegment(V(10.582492, 44.572102, 0), V(-11.317508, 44.572102, 0)),  # 0
    Part.LineSegment(V(-11.317508, 44.572102, 0), V(-11.317508, 24.05, 0)),  # 1
    Part.ArcOfCircle(Part.Circle(V(-9.567508, 24.05, 0), V(0, 0, 1), 1.75), math.radians(180), math.radians(270)),  # 2
    Part.LineSegment(V(-9.567508, 22.3, 0), V(8.832492, 22.3, 0)),  # 3
    Part.ArcOfCircle(Part.Circle(V(8.832492, 24.05, 0), V(0, 0, 1), 1.75), math.radians(-90), math.radians(0)),  # 4
    Part.LineSegment(V(10.582492, 24.05, 0), V(10.582492, 44.572102, 0)),  # 5
], False)
sketch14.addConstraint([
    Sketcher.Constraint("Coincident", 0, 2, 1, 1),
    Sketcher.Constraint("Tangent", 1, 2, 2, 1),
    Sketcher.Constraint("Tangent", 2, 2, 3, 1),
    Sketcher.Constraint("Tangent", 3, 2, 4, 1),
    Sketcher.Constraint("Tangent", 4, 2, 5, 1),
    Sketcher.Constraint("Coincident", 5, 2, 0, 1),
    Sketcher.Constraint("Horizontal", 0),
    Sketcher.Constraint("Vertical", 1),
    Sketcher.Constraint("Horizontal", 3),
    Sketcher.Constraint("Vertical", 5),
    Sketcher.Constraint("Equal", 2, 4),
    Sketcher.Constraint("Radius", 2, Q("1.75 mm")),
    Sketcher.Constraint("DistanceX", 0, 2, 0, 1, Q("21.9 mm")),
    Sketcher.Constraint("DistanceY", -1, 1, 2, 2, Q("22.3 mm")),
    Sketcher.Constraint("DistanceY", 1, 2, 1, 1, Q("20.522102 mm")),
    Sketcher.Constraint("DistanceX", 2, 3, -1, 1, Q("9.567508 mm")),
])
pad5 = body.newObject("PartDesign::Pad", "Pad004")
pad5.Profile = sketch14
pad5.Length = 1.38
pad5.Reversed = True
doc.recompute()

fillet = body.newObject("PartDesign::Fillet", "Fillet")
fillet.Base = (pad5, edges_at(pad5, [
    (-45, -29.184, 15),
    (-47.8, -8.368, 15),
    (-47.8, 7.632, 15),
    (42.5, 50, 15),
    (42.5, -50, 15),
    (45, 0, 15),
    (-42.5, 50, 15),
    (-42.5, -50, 15),
    (-45, 28.816, 15),
]))
fillet.Radius = 2
doc.recompute()

fillet2 = body.newObject("PartDesign::Fillet", "Fillet001")
fillet2.Base = (fillet, edges_at(fillet, [(-75, 0, 15)]))
fillet2.Radius = 2

# Sketch on YZ plane
sketch15 = body.newObject("Sketcher::SketchObject", "Sketch014")
sketch15.AttachmentSupport = (doc.getObject("YZ_Plane"), [""])
sketch15.MapMode = "FlatFace"
sketch15.AttachmentOffset = App.Placement(V(0, 0, 40), App.Rotation())
sketch15.addGeometry(Part.Circle(V(-0.367508, 53.15, 0), V(0, 0, 1), 12.5), False)
sketch15.addConstraint([
    Sketcher.Constraint("Diameter", 0, Q("25 mm")),
    Sketcher.Constraint("DistanceY", -1, 1, 0, 3, Q("53.15 mm")),
    Sketcher.Constraint("DistanceX", 0, 3, -1, 1, Q("0.367508 mm")),
])
pocket10 = body.newObject("PartDesign::Pocket", "Pocket009")
pocket10.Profile = sketch15
pocket10.Type = "UpToFirst"
pocket10.Reversed = True

doc.recompute()
